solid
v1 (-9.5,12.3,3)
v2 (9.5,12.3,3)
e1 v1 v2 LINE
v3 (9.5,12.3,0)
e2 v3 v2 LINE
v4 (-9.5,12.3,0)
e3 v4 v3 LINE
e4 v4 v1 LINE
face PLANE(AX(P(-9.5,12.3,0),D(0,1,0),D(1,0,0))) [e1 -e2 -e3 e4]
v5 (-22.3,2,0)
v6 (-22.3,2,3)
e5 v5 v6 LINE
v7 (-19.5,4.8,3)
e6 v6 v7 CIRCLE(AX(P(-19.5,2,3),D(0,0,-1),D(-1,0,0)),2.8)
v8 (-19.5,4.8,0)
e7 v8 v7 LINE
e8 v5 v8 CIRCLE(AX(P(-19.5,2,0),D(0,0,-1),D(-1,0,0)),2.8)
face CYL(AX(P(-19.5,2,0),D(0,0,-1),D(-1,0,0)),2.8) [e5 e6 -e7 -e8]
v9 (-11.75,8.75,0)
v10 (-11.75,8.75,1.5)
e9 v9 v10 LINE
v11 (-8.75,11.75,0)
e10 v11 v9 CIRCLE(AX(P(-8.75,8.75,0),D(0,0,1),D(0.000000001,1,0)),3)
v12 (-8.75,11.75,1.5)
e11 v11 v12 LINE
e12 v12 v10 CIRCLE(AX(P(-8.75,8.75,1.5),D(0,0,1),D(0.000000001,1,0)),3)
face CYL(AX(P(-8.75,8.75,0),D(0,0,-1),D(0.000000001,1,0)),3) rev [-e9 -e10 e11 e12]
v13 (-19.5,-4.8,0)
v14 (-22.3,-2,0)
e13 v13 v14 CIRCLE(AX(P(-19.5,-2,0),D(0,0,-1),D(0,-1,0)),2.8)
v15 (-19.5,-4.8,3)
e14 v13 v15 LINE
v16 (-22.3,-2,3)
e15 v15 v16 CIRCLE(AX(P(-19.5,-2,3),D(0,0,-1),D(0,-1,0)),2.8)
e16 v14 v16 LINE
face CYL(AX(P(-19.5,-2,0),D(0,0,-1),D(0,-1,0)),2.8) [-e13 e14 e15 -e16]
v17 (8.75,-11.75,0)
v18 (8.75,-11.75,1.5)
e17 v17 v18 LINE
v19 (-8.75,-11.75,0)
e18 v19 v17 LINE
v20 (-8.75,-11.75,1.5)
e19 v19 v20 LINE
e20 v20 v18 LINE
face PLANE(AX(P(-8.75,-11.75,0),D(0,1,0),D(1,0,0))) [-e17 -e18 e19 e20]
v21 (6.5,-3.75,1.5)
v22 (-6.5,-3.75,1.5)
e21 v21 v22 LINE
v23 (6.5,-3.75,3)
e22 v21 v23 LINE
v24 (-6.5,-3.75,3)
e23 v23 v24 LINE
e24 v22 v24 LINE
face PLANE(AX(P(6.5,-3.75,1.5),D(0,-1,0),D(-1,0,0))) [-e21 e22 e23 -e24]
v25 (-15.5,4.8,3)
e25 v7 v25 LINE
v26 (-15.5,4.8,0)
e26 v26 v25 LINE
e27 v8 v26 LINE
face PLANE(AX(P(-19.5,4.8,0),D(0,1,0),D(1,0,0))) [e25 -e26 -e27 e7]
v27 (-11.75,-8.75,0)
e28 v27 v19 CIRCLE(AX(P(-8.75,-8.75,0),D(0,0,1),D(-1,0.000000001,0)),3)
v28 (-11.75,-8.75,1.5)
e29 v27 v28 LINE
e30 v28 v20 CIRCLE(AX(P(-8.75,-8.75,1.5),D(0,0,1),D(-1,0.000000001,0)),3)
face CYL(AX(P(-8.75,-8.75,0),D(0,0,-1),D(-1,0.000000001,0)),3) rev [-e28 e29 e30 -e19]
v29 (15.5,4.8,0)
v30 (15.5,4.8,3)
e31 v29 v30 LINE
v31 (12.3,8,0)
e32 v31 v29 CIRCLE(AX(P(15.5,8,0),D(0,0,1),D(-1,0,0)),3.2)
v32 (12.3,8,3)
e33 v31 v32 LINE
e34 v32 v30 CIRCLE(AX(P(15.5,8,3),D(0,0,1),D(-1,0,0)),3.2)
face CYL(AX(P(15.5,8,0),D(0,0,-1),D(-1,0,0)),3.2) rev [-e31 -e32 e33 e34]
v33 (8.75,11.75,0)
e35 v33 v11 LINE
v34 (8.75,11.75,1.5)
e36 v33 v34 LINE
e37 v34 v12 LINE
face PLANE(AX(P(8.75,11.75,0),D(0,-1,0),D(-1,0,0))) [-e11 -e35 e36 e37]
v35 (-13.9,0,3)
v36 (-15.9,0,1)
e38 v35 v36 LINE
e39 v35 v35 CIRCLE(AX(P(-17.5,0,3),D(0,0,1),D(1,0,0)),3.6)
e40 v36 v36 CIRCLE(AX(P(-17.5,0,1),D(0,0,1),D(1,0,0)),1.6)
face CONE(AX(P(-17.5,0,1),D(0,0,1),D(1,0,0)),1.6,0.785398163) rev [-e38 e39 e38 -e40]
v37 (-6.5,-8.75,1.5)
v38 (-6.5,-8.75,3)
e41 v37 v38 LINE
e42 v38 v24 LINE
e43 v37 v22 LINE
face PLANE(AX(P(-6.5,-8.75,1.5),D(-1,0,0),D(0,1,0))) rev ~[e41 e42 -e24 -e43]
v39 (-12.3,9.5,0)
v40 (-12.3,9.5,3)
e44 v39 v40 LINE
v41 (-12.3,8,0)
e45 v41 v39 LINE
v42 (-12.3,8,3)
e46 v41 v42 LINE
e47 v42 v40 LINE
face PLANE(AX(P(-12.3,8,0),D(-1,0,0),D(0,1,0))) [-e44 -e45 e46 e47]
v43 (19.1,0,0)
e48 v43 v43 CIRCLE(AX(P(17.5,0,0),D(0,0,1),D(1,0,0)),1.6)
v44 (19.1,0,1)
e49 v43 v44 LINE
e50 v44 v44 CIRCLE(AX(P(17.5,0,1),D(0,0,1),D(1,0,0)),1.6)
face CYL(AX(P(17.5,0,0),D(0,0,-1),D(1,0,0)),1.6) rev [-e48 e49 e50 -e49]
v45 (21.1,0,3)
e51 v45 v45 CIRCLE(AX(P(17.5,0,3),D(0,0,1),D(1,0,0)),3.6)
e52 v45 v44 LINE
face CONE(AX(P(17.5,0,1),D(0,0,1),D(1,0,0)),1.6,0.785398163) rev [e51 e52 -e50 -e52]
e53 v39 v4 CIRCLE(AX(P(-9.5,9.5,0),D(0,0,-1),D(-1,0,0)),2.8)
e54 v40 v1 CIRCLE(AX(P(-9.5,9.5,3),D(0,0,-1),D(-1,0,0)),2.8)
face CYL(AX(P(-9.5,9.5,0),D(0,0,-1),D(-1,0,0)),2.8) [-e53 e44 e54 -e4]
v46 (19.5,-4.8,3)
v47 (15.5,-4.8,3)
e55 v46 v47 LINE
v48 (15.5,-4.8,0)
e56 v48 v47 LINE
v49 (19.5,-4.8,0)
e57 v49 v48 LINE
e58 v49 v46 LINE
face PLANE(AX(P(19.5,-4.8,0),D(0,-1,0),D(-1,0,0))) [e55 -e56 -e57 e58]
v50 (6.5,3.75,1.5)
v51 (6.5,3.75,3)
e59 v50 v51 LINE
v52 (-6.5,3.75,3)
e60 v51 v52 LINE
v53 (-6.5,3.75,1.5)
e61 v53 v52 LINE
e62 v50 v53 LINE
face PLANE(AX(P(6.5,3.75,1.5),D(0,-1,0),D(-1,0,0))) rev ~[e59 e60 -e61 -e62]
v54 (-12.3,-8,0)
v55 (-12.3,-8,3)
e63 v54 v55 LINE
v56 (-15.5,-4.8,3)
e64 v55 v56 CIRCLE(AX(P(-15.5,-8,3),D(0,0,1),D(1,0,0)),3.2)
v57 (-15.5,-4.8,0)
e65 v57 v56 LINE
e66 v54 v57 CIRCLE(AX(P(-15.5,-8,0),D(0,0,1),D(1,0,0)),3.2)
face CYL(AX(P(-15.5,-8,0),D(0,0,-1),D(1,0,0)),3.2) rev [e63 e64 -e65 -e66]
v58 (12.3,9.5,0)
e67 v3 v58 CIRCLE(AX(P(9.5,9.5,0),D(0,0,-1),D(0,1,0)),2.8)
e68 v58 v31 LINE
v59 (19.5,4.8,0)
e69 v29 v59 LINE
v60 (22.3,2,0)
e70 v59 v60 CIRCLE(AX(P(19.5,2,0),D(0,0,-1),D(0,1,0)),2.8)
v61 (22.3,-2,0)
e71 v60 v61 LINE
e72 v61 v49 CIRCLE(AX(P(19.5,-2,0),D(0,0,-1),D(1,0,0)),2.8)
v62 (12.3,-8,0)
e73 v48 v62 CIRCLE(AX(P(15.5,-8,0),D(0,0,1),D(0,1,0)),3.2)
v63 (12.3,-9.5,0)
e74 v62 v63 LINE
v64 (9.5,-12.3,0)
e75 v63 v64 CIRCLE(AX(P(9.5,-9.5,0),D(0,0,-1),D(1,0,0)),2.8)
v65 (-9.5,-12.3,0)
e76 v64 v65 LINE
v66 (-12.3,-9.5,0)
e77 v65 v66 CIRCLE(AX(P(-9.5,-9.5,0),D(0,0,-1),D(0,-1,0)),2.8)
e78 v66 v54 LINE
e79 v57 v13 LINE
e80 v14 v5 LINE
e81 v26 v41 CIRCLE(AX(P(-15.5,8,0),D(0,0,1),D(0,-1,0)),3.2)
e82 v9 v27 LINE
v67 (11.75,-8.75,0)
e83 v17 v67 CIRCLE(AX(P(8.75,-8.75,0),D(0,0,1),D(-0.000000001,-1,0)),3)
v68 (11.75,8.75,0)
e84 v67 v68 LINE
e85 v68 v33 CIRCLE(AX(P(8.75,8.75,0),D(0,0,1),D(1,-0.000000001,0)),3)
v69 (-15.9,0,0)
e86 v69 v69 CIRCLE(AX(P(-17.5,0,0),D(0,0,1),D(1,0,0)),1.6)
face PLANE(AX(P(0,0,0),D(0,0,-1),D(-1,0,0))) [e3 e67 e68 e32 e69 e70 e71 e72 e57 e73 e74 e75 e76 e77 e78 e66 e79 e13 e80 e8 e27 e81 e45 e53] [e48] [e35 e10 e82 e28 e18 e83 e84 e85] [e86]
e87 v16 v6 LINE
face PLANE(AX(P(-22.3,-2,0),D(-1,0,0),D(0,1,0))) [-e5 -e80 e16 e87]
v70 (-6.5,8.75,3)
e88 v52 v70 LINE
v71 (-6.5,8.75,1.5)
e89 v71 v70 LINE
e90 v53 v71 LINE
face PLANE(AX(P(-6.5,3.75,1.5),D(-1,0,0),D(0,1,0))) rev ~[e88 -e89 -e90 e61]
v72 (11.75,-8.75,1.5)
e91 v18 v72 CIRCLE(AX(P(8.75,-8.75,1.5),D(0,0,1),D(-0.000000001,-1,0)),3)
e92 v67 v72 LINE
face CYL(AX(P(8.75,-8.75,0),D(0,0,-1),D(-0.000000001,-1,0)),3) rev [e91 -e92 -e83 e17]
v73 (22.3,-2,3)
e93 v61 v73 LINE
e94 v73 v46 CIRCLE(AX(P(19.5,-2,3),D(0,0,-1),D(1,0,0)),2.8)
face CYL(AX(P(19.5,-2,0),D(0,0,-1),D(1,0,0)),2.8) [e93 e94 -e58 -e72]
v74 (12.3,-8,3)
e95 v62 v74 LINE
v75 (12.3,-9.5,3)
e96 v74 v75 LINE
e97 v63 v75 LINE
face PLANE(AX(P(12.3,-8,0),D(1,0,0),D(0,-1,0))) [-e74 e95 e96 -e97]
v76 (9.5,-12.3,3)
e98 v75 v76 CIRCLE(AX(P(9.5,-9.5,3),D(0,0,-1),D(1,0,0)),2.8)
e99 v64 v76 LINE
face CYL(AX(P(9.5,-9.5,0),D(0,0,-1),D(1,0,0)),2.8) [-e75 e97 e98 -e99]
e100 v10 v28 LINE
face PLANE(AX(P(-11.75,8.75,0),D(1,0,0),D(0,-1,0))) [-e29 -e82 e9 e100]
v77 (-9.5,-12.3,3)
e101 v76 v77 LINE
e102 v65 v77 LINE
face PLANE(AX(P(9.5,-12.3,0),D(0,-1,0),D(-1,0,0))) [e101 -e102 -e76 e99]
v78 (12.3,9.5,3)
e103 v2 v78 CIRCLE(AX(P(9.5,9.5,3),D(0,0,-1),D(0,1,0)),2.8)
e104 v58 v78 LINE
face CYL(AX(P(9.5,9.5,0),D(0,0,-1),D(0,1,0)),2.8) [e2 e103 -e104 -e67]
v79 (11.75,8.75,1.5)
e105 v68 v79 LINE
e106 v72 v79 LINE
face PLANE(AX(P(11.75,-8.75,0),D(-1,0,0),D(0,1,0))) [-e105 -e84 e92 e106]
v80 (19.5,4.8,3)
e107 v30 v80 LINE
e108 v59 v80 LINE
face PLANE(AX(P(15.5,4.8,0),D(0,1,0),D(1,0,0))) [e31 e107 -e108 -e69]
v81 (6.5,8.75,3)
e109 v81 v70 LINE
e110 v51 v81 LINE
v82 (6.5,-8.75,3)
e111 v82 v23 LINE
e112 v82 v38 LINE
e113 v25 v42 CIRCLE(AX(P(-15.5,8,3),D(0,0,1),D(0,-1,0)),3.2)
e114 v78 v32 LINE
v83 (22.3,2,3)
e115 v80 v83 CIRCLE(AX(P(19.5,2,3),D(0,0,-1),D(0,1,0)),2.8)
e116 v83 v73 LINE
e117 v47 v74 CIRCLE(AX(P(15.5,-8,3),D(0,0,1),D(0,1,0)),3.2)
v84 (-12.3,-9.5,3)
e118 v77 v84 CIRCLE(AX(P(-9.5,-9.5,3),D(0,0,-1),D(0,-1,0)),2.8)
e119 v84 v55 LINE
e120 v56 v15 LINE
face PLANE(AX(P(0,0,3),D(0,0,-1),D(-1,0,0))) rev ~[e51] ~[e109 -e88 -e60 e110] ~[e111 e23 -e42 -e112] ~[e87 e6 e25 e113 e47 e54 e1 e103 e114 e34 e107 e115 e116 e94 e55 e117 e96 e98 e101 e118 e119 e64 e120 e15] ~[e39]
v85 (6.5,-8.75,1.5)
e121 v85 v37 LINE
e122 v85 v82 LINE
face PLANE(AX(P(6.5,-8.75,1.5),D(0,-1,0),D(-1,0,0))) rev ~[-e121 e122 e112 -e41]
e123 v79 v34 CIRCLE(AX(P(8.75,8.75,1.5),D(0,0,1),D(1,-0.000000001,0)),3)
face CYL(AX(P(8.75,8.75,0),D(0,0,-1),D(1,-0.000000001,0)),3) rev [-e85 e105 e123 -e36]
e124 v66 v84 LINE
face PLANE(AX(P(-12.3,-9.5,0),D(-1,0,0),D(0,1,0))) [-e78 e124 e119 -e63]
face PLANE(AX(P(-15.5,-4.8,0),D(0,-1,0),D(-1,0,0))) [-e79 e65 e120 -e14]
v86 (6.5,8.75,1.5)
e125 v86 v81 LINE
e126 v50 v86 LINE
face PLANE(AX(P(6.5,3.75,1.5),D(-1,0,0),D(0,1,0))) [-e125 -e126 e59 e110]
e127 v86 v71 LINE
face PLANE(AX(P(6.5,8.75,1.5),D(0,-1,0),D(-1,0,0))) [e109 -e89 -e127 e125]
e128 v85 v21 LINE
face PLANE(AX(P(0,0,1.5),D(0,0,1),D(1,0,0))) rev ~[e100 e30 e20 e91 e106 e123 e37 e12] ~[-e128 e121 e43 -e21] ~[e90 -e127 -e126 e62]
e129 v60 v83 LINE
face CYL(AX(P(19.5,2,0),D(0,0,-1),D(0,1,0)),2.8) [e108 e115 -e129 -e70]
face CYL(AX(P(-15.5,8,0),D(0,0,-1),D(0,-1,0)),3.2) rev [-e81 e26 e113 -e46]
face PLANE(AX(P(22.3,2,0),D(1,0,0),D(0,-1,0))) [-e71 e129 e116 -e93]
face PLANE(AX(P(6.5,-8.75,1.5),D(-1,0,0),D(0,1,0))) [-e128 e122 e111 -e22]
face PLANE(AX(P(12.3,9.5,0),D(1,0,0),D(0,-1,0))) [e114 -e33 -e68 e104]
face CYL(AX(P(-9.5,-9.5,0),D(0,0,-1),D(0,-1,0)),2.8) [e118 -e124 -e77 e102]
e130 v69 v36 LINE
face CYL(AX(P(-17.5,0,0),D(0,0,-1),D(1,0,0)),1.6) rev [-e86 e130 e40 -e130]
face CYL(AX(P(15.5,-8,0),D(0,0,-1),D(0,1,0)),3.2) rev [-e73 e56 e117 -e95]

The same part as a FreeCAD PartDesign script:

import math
import FreeCAD as App
import Part
import Sketcher

V = App.Vector


def edges_at(feature, points):
    """Names of the edges that pass closest to the given points."""
    edges = feature.Shape.Edges
    near = lambda p: min(range(len(edges)), key=lambda i: edges[i].distToShape(Part.Vertex(*p))[0])
    return sorted({f"Edge{near(p) + 1}" for p in points})

doc = App.newDocument("Part")
params = doc.addObject("Spreadsheet::Sheet", "Params")
for row, (alias, value) in enumerate([
    ("sketch1_diameter", "3.2 mm"),
    ("sketch1_radius", "2.8 mm"),
    ("sketch1_radius2", "3.2 mm"),
    ("sketch1_width", "19 mm"),
    ("sketch1_width2", "4 mm"),
    ("pad1_length", "3 mm"),
    ("sketch2_radius", "3 mm"),
    ("sketch2_width", "17.5 mm"),
    ("pocket1_length", "1.5 mm"),
    ("sketch3_width", "13 mm"),
    ("sketch3_height", "5 mm"),
    ("chamfer_size", "2 mm"),
], start=1):
    params.set(f"A{row}", alias)
    params.set(f"B{row}", "=" + value)
    params.setAlias(f"B{row}", alias)

body = doc.addObject("PartDesign::Body", "Body")

# Sketch on XY plane
sketch1 = body.newObject("Sketcher::SketchObject", "Sketch")
sketch1.AttachmentSupport = (doc.getObject("XY_Plane"), [""])
sketch1.MapMode = "FlatFace"
sketch1.addGeometry([
    Part.LineSegment(V(9.5, 12.3, 0), V(-9.5, 12.3, 0)),  # 0
    Part.ArcOfCircle(Part.Circle(V(-9.5, 9.5, 0), V(0, 0, 1), 2.8), math.radians(90), math.radians(180)),  # 1
    Part.LineSegment(V(-12.3, 9.5, 0), V(-12.3, 8, 0)),  # 2
    Part.ArcOfCircle(Part.Circle(V(-15.5, 8, 0), V(0, 0, 1), 3.2), math.radians(-90), math.radians(0)),  # 3
    Part.LineSegment(V(-15.5, 4.8, 0), V(-19.5, 4.8, 0)),  # 4
    Part.ArcOfCircle(Part.Circle(V(-19.5, 2, 0), V(0, 0, 1), 2.8), math.radians(90), math.radians(180)),  # 5
    Part.LineSegment(V(-22.3, 2, 0), V(-22.3, -2, 0)),  # 6
    Part.ArcOfCircle(Part.Circle(V(-19.5, -2, 0), V(0, 0, 1), 2.8), math.radians(-180), math.radians(-90)),  # 7
    Part.LineSegment(V(-19.5, -4.8, 0), V(-15.5, -4.8, 0)),  # 8
    Part.ArcOfCircle(Part.Circle(V(-15.5, -8, 0), V(0, 0, 1), 3.2), math.radians(0), math.radians(90)),  # 9
    Part.LineSegment(V(-12.3, -8, 0), V(-12.3, -9.5, 0)),  # 10
    Part.ArcOfCircle(Part.Circle(V(-9.5, -9.5, 0), V(0, 0, 1), 2.8), math.radians(-180), math.radians(-90)),  # 11
    Part.LineSegment(V(-9.5, -12.3, 0), V(9.5, -12.3, 0)),  # 12
    Part.ArcOfCircle(Part.Circle(V(9.5, -9.5, 0), V(0, 0, 1), 2.8), math.radians(-90), math.radians(0)),  # 13
    Part.LineSegment(V(12.3, -9.5, 0), V(12.3, -8, 0)),  # 14
    Part.ArcOfCircle(Part.Circle(V(15.5, -8, 0), V(0, 0, 1), 3.2), math.radians(90), math.radians(180)),  # 15
    Part.LineSegment(V(15.5, -4.8, 0), V(19.5, -4.8, 0)),  # 16
    Part.ArcOfCircle(Part.Circle(V(19.5, -2, 0), V(0, 0, 1), 2.8), math.radians(-90), math.radians(0)),  # 17
    Part.LineSegment(V(22.3, -2, 0), V(22.3, 2, 0)),  # 18
    Part.ArcOfCircle(Part.Circle(V(19.5, 2, 0), V(0, 0, 1), 2.8), math.radians(0), math.radians(90)),  # 19
    Part.LineSegment(V(19.5, 4.8, 0), V(15.5, 4.8, 0)),  # 20
    Part.ArcOfCircle(Part.Circle(V(15.5, 8, 0), V(0, 0, 1), 3.2), math.radians(180), math.radians(270)),  # 21
    Part.LineSegment(V(12.3, 8, 0), V(12.3, 9.5, 0)),  # 22
    Part.ArcOfCircle(Part.Circle(V(9.5, 9.5, 0), V(0, 0, 1), 2.8), math.radians(0), math.radians(90)),  # 23
    Part.Circle(V(17.5, 0, 0), V(0, 0, 1), 1.6),  # 24
    Part.Circle(V(-17.5, 0, 0), V(0, 0, 1), 1.6),  # 25
], False)
sketch1.addConstraint([
    Sketcher.Constraint("Tangent", 0, 2, 1, 1),
    Sketcher.Constraint("Tangent", 1, 2, 2, 1),
    Sketcher.Constraint("Tangent", 2, 2, 3, 2),
    Sketcher.Constraint("Tangent", 3, 1, 4, 1),
    Sketcher.Constraint("Tangent", 4, 2, 5, 1),
    Sketcher.Constraint("Tangent", 5, 2, 6, 1),
    Sketcher.Constraint("Tangent", 6, 2, 7, 1),
    Sketcher.Constraint("Tangent", 7, 2, 8, 1),
    Sketcher.Constraint("Tangent", 8, 2, 9, 2),
    Sketcher.Constraint("Tangent", 9, 1, 10, 1),
    Sketcher.Constraint("Tangent", 10, 2, 11, 1),
    Sketcher.Constraint("Tangent", 11, 2, 12, 1),
    Sketcher.Constraint("Tangent", 12, 2, 13, 1),
    Sketcher.Constraint("Tangent", 13, 2, 14, 1),
    Sketcher.Constraint("Tangent", 14, 2, 15, 2),
    Sketcher.Constraint("Tangent", 15, 1, 16, 1),
    Sketcher.Constraint("Tangent", 16, 2, 17, 1),
    Sketcher.Constraint("Tangent", 17, 2, 18, 1),
    Sketcher.Constraint("Tangent", 18, 2, 19, 1),
    Sketcher.Constraint("Tangent", 19, 2, 20, 1),
    Sketcher.Constraint("Tangent", 20, 2, 21, 2),
    Sketcher.Constraint("Tangent", 21, 1, 22, 1),
    Sketcher.Constraint("Tangent", 22, 2, 23, 1),
    Sketcher.Constraint("Tangent", 23, 2, 0, 1),
    Sketcher.Constraint("Horizontal", 0),
    Sketcher.Constraint("Vertical", 2),
    Sketcher.Constraint("Horizontal", 4),
    Sketcher.Constraint("Vertical", 6),
    Sketcher.Constraint("Horizontal", 8),
    Sketcher.Constraint("Vertical", 10),
    Sketcher.Constraint("Horizontal", 12),
    Sketcher.Constraint("Vertical", 14),
    Sketcher.Constraint("Horizontal", 16),
    Sketcher.Constraint("Vertical", 18),
    Sketcher.Constraint("Horizontal", 20),
    Sketcher.Constraint("Vertical", 22),
    Sketcher.Constraint("Equal", 1, 5),
    Sketcher.Constraint("Equal", 5, 7),
    Sketcher.Constraint("Equal", 3, 9),
    Sketcher.Constraint("Equal", 7, 11),
    Sketcher.Constraint("Equal", 11, 13),
    Sketcher.Constraint("Equal", 9, 15),
    Sketcher.Constraint("Equal", 13, 17),
    Sketcher.Constraint("Equal", 17, 19),
    Sketcher.Constraint("Equal", 15, 21),
    Sketcher.Constraint("Equal", 19, 23),
    Sketcher.Constraint("Equal", 24, 25),
    Sketcher.Constraint("Symmetric", 1, 3, 13, 3, -1, 1),
    Sketcher.Constraint("Symmetric", 5, 3, 17, 3, -1, 1),
    Sketcher.Constraint("Symmetric", 9, 3, 21, 3, -1, 1),
    Sketcher.Constraint("Symmetric", 24, 3, 25, 3, -1, 1),
    Sketcher.Constraint("Symmetric", 9, 3, 15, 3, -2),
    Sketcher.Constraint("PointOnObject", 24, 3, -1),
    Sketcher.Constraint("Equal", 20, 6),
    Sketcher.Constraint("Diameter", 24, 3.2),
    Sketcher.Constraint("Radius", 1, 2.8),
    Sketcher.Constraint("Radius", 3, 3.2),
    Sketcher.Constraint("DistanceX", 0, 2, 0, 1, 19.0),
    Sketcher.Constraint("DistanceX", 4, 2, 4, 1, 4.0),
    Sketcher.Constraint("DistanceY", 2, 2, 2, 1, 1.5),
    Sketcher.Constraint("DistanceX", 24, 3, 17, 3, 2.0),
])
sketch1.setExpression("Constraints[54]", "Params.sketch1_diameter")
sketch1.setExpression("Constraints[55]", "Params.sketch1_radius")
sketch1.setExpression("Constraints[56]", "Params.sketch1_radius2")
sketch1.setExpression("Constraints[57]", "Params.sketch1_width")
sketch1.setExpression("Constraints[58]", "Params.sketch1_width2")
pad1 = body.newObject("PartDesign::Pad", "Pad")
pad1.Profile = sketch1
pad1.setExpression("Length", "Params.pad1_length")

# Sketch on XY plane
sketch2 = body.newObject("Sketcher::SketchObject", "Sketch001")
sketch2.AttachmentSupport = (doc.getObject("XY_Plane"), [""])
sketch2.MapMode = "FlatFace"
sketch2.addGeometry([
    Part.LineSegment(V(-8.8, 11.8, 0), V(8.8, 11.8, 0)),  # 0
    Part.ArcOfCircle(Part.Circle(V(8.8, 8.8, 0), V(0, 0, 1), 3), math.radians(0), math.radians(90)),  # 1
    Part.LineSegment(V(11.8, 8.8, 0), V(11.8, -8.8, 0)),  # 2
    Part.ArcOfCircle(Part.Circle(V(8.8, -8.8, 0), V(0, 0, 1), 3), math.radians(-90), math.radians(0)),  # 3
    Part.LineSegment(V(8.8, -11.8, 0), V(-8.8, -11.8, 0)),  # 4
    Part.ArcOfCircle(Part.Circle(V(-8.8, -8.8, 0), V(0, 0, 1), 3), math.radians(180), math.radians(270)),  # 5
    Part.LineSegment(V(-11.8, -8.8, 0), V(-11.8, 8.8, 0)),  # 6
    Part.ArcOfCircle(Part.Circle(V(-8.8, 8.8, 0), V(0, 0, 1), 3), math.radians(90), math.radians(180)),  # 7
], False)
sketch2.addConstraint([
    Sketcher.Constraint("Tangent", 0, 2, 1, 2),
    Sketcher.Constraint("Tangent", 1, 1, 2, 1),
    Sketcher.Constraint("Tangent", 2, 2, 3, 2),
    Sketcher.Constraint("Tangent", 3, 1, 4, 1),
    Sketcher.Constraint("Tangent", 4, 2, 5, 2),
    Sketcher.Constraint("Tangent", 5, 1, 6, 1),
    Sketcher.Constraint("Tangent", 6, 2, 7, 2),
    Sketcher.Constraint("Tangent", 7, 1, 0, 1),
    Sketcher.Constraint("Horizontal", 0),
    Sketcher.Constraint("Vertical", 2),
    Sketcher.Constraint("Horizontal", 4),
    Sketcher.Constraint("Vertical", 6),
    Sketcher.Constraint("Equal", 1, 3),
    Sketcher.Constraint("Equal", 3, 5),
    Sketcher.Constraint("Equal", 5, 7),
    Sketcher.Constraint("Symmetric", 1, 3, 5, 3, -1, 1),
    Sketcher.Constraint("Equal", 4, 2),
    Sketcher.Constraint("Radius", 1, 3.0),
    Sketcher.Constraint("DistanceX", 0, 1, 0, 2, 17.5),
])
sketch2.setExpression("Constraints[17]", "Params.sketch2_radius")
sketch2.setExpression("Constraints[18]", "Params.sketch2_width")
pocket1 = body.newObject("PartDesign::Pocket", "Pocket")
pocket1.Profile = sketch2
pocket1.setExpression("Length", "Params.pocket1_length")
pocket1.Reversed = True

# Sketch on XY plane
sketch3 = body.newObject("Sketcher::SketchObject", "Sketch002")
sketch3.AttachmentSupport = (doc.getObject("XY_Plane"), [""])
sketch3.MapMode = "FlatFace"
sketch3.AttachmentOffset = App.Placement(V(0, 0, 1.5), App.Rotation())
sketch3.addGeometry([
    Part.LineSegment(V(6, 9, 0), V(6, 4, 0)),  # 0
    Part.LineSegment(V(6, 4, 0), V(-6, 4, 0)),  # 1
    Part.LineSegment(V(-6, 4, 0), V(-6, 9, 0)),  # 2
    Part.LineSegment(V(-6, 9, 0), V(6, 9, 0)),  # 3
    Part.LineSegment(V(6, -4, 0), V(6, -9, 0)),  # 4
    Part.LineSegment(V(6, -9, 0), V(-6, -9, 0)),  # 5
    Part.LineSegment(V(-6, -9, 0), V(-6, -4, 0)),  # 6
    Part.LineSegment(V(-6, -4, 0), V(6, -4, 0)),  # 7
], False)
sketch3.addConstraint([
    Sketcher.Constraint("Coincident", 0, 2, 1, 1),
    Sketcher.Constraint("Coincident", 1, 2, 2, 1),
    Sketcher.Constraint("Coincident", 2, 2, 3, 1),
    Sketcher.Constraint("Coincident", 3, 2, 0, 1),
    Sketcher.Constraint("Coincident", 4, 2, 5, 1),
    Sketcher.Constraint("Coincident", 5, 2, 6, 1),
    Sketcher.Constraint("Coincident", 6, 2, 7, 1),
    Sketcher.Constraint("Coincident", 7, 2, 4, 1),
    Sketcher.Constraint("Vertical", 0),
    Sketcher.Constraint("Horizontal", 1),
    Sketcher.Constraint("Vertical", 2),
    Sketcher.Constraint("Horizontal", 3),
    Sketcher.Constraint("Vertical", 4),
    Sketcher.Constraint("Horizontal", 5),
    Sketcher.Constraint("Vertical", 6),
    Sketcher.Constraint("Horizontal", 7),
    Sketcher.Constraint("Symmetric", 2, 2, 4, 2, -1, 1),
    Sketcher.Constraint("Symmetric", 0, 2, 6, 2, -1, 1),
    Sketcher.Constraint("Vertical", 3, 2, 4, 2),
    Sketcher.Constraint("DistanceX", 1, 2, 1, 1, 13.0),
    Sketcher.Constraint("DistanceY", 0, 2, 0, 1, 5.0),
    Sketcher.Constraint("DistanceY", 4, 2, 0, 2, 12.5),
])
sketch3.setExpression("Constraints[19]", "Params.sketch3_width")
sketch3.setExpression("Constraints[20]", "Params.sketch3_height")
pocket2 = body.newObject("PartDesign::Pocket", "Pocket001")
pocket2.Profile = sketch3
pocket2.Type = "ThroughAll"
pocket2.Reversed = True
doc.recompute()

chamfer = body.newObject("PartDesign::Chamfer", "Chamfer")
chamfer.Base = (pocket2, edges_at(pocket2, [(-19.1, 0, 3), (15.9, 0, 3)]))
chamfer.setExpression("Size", "Params.chamfer_size")

doc.recompute()
